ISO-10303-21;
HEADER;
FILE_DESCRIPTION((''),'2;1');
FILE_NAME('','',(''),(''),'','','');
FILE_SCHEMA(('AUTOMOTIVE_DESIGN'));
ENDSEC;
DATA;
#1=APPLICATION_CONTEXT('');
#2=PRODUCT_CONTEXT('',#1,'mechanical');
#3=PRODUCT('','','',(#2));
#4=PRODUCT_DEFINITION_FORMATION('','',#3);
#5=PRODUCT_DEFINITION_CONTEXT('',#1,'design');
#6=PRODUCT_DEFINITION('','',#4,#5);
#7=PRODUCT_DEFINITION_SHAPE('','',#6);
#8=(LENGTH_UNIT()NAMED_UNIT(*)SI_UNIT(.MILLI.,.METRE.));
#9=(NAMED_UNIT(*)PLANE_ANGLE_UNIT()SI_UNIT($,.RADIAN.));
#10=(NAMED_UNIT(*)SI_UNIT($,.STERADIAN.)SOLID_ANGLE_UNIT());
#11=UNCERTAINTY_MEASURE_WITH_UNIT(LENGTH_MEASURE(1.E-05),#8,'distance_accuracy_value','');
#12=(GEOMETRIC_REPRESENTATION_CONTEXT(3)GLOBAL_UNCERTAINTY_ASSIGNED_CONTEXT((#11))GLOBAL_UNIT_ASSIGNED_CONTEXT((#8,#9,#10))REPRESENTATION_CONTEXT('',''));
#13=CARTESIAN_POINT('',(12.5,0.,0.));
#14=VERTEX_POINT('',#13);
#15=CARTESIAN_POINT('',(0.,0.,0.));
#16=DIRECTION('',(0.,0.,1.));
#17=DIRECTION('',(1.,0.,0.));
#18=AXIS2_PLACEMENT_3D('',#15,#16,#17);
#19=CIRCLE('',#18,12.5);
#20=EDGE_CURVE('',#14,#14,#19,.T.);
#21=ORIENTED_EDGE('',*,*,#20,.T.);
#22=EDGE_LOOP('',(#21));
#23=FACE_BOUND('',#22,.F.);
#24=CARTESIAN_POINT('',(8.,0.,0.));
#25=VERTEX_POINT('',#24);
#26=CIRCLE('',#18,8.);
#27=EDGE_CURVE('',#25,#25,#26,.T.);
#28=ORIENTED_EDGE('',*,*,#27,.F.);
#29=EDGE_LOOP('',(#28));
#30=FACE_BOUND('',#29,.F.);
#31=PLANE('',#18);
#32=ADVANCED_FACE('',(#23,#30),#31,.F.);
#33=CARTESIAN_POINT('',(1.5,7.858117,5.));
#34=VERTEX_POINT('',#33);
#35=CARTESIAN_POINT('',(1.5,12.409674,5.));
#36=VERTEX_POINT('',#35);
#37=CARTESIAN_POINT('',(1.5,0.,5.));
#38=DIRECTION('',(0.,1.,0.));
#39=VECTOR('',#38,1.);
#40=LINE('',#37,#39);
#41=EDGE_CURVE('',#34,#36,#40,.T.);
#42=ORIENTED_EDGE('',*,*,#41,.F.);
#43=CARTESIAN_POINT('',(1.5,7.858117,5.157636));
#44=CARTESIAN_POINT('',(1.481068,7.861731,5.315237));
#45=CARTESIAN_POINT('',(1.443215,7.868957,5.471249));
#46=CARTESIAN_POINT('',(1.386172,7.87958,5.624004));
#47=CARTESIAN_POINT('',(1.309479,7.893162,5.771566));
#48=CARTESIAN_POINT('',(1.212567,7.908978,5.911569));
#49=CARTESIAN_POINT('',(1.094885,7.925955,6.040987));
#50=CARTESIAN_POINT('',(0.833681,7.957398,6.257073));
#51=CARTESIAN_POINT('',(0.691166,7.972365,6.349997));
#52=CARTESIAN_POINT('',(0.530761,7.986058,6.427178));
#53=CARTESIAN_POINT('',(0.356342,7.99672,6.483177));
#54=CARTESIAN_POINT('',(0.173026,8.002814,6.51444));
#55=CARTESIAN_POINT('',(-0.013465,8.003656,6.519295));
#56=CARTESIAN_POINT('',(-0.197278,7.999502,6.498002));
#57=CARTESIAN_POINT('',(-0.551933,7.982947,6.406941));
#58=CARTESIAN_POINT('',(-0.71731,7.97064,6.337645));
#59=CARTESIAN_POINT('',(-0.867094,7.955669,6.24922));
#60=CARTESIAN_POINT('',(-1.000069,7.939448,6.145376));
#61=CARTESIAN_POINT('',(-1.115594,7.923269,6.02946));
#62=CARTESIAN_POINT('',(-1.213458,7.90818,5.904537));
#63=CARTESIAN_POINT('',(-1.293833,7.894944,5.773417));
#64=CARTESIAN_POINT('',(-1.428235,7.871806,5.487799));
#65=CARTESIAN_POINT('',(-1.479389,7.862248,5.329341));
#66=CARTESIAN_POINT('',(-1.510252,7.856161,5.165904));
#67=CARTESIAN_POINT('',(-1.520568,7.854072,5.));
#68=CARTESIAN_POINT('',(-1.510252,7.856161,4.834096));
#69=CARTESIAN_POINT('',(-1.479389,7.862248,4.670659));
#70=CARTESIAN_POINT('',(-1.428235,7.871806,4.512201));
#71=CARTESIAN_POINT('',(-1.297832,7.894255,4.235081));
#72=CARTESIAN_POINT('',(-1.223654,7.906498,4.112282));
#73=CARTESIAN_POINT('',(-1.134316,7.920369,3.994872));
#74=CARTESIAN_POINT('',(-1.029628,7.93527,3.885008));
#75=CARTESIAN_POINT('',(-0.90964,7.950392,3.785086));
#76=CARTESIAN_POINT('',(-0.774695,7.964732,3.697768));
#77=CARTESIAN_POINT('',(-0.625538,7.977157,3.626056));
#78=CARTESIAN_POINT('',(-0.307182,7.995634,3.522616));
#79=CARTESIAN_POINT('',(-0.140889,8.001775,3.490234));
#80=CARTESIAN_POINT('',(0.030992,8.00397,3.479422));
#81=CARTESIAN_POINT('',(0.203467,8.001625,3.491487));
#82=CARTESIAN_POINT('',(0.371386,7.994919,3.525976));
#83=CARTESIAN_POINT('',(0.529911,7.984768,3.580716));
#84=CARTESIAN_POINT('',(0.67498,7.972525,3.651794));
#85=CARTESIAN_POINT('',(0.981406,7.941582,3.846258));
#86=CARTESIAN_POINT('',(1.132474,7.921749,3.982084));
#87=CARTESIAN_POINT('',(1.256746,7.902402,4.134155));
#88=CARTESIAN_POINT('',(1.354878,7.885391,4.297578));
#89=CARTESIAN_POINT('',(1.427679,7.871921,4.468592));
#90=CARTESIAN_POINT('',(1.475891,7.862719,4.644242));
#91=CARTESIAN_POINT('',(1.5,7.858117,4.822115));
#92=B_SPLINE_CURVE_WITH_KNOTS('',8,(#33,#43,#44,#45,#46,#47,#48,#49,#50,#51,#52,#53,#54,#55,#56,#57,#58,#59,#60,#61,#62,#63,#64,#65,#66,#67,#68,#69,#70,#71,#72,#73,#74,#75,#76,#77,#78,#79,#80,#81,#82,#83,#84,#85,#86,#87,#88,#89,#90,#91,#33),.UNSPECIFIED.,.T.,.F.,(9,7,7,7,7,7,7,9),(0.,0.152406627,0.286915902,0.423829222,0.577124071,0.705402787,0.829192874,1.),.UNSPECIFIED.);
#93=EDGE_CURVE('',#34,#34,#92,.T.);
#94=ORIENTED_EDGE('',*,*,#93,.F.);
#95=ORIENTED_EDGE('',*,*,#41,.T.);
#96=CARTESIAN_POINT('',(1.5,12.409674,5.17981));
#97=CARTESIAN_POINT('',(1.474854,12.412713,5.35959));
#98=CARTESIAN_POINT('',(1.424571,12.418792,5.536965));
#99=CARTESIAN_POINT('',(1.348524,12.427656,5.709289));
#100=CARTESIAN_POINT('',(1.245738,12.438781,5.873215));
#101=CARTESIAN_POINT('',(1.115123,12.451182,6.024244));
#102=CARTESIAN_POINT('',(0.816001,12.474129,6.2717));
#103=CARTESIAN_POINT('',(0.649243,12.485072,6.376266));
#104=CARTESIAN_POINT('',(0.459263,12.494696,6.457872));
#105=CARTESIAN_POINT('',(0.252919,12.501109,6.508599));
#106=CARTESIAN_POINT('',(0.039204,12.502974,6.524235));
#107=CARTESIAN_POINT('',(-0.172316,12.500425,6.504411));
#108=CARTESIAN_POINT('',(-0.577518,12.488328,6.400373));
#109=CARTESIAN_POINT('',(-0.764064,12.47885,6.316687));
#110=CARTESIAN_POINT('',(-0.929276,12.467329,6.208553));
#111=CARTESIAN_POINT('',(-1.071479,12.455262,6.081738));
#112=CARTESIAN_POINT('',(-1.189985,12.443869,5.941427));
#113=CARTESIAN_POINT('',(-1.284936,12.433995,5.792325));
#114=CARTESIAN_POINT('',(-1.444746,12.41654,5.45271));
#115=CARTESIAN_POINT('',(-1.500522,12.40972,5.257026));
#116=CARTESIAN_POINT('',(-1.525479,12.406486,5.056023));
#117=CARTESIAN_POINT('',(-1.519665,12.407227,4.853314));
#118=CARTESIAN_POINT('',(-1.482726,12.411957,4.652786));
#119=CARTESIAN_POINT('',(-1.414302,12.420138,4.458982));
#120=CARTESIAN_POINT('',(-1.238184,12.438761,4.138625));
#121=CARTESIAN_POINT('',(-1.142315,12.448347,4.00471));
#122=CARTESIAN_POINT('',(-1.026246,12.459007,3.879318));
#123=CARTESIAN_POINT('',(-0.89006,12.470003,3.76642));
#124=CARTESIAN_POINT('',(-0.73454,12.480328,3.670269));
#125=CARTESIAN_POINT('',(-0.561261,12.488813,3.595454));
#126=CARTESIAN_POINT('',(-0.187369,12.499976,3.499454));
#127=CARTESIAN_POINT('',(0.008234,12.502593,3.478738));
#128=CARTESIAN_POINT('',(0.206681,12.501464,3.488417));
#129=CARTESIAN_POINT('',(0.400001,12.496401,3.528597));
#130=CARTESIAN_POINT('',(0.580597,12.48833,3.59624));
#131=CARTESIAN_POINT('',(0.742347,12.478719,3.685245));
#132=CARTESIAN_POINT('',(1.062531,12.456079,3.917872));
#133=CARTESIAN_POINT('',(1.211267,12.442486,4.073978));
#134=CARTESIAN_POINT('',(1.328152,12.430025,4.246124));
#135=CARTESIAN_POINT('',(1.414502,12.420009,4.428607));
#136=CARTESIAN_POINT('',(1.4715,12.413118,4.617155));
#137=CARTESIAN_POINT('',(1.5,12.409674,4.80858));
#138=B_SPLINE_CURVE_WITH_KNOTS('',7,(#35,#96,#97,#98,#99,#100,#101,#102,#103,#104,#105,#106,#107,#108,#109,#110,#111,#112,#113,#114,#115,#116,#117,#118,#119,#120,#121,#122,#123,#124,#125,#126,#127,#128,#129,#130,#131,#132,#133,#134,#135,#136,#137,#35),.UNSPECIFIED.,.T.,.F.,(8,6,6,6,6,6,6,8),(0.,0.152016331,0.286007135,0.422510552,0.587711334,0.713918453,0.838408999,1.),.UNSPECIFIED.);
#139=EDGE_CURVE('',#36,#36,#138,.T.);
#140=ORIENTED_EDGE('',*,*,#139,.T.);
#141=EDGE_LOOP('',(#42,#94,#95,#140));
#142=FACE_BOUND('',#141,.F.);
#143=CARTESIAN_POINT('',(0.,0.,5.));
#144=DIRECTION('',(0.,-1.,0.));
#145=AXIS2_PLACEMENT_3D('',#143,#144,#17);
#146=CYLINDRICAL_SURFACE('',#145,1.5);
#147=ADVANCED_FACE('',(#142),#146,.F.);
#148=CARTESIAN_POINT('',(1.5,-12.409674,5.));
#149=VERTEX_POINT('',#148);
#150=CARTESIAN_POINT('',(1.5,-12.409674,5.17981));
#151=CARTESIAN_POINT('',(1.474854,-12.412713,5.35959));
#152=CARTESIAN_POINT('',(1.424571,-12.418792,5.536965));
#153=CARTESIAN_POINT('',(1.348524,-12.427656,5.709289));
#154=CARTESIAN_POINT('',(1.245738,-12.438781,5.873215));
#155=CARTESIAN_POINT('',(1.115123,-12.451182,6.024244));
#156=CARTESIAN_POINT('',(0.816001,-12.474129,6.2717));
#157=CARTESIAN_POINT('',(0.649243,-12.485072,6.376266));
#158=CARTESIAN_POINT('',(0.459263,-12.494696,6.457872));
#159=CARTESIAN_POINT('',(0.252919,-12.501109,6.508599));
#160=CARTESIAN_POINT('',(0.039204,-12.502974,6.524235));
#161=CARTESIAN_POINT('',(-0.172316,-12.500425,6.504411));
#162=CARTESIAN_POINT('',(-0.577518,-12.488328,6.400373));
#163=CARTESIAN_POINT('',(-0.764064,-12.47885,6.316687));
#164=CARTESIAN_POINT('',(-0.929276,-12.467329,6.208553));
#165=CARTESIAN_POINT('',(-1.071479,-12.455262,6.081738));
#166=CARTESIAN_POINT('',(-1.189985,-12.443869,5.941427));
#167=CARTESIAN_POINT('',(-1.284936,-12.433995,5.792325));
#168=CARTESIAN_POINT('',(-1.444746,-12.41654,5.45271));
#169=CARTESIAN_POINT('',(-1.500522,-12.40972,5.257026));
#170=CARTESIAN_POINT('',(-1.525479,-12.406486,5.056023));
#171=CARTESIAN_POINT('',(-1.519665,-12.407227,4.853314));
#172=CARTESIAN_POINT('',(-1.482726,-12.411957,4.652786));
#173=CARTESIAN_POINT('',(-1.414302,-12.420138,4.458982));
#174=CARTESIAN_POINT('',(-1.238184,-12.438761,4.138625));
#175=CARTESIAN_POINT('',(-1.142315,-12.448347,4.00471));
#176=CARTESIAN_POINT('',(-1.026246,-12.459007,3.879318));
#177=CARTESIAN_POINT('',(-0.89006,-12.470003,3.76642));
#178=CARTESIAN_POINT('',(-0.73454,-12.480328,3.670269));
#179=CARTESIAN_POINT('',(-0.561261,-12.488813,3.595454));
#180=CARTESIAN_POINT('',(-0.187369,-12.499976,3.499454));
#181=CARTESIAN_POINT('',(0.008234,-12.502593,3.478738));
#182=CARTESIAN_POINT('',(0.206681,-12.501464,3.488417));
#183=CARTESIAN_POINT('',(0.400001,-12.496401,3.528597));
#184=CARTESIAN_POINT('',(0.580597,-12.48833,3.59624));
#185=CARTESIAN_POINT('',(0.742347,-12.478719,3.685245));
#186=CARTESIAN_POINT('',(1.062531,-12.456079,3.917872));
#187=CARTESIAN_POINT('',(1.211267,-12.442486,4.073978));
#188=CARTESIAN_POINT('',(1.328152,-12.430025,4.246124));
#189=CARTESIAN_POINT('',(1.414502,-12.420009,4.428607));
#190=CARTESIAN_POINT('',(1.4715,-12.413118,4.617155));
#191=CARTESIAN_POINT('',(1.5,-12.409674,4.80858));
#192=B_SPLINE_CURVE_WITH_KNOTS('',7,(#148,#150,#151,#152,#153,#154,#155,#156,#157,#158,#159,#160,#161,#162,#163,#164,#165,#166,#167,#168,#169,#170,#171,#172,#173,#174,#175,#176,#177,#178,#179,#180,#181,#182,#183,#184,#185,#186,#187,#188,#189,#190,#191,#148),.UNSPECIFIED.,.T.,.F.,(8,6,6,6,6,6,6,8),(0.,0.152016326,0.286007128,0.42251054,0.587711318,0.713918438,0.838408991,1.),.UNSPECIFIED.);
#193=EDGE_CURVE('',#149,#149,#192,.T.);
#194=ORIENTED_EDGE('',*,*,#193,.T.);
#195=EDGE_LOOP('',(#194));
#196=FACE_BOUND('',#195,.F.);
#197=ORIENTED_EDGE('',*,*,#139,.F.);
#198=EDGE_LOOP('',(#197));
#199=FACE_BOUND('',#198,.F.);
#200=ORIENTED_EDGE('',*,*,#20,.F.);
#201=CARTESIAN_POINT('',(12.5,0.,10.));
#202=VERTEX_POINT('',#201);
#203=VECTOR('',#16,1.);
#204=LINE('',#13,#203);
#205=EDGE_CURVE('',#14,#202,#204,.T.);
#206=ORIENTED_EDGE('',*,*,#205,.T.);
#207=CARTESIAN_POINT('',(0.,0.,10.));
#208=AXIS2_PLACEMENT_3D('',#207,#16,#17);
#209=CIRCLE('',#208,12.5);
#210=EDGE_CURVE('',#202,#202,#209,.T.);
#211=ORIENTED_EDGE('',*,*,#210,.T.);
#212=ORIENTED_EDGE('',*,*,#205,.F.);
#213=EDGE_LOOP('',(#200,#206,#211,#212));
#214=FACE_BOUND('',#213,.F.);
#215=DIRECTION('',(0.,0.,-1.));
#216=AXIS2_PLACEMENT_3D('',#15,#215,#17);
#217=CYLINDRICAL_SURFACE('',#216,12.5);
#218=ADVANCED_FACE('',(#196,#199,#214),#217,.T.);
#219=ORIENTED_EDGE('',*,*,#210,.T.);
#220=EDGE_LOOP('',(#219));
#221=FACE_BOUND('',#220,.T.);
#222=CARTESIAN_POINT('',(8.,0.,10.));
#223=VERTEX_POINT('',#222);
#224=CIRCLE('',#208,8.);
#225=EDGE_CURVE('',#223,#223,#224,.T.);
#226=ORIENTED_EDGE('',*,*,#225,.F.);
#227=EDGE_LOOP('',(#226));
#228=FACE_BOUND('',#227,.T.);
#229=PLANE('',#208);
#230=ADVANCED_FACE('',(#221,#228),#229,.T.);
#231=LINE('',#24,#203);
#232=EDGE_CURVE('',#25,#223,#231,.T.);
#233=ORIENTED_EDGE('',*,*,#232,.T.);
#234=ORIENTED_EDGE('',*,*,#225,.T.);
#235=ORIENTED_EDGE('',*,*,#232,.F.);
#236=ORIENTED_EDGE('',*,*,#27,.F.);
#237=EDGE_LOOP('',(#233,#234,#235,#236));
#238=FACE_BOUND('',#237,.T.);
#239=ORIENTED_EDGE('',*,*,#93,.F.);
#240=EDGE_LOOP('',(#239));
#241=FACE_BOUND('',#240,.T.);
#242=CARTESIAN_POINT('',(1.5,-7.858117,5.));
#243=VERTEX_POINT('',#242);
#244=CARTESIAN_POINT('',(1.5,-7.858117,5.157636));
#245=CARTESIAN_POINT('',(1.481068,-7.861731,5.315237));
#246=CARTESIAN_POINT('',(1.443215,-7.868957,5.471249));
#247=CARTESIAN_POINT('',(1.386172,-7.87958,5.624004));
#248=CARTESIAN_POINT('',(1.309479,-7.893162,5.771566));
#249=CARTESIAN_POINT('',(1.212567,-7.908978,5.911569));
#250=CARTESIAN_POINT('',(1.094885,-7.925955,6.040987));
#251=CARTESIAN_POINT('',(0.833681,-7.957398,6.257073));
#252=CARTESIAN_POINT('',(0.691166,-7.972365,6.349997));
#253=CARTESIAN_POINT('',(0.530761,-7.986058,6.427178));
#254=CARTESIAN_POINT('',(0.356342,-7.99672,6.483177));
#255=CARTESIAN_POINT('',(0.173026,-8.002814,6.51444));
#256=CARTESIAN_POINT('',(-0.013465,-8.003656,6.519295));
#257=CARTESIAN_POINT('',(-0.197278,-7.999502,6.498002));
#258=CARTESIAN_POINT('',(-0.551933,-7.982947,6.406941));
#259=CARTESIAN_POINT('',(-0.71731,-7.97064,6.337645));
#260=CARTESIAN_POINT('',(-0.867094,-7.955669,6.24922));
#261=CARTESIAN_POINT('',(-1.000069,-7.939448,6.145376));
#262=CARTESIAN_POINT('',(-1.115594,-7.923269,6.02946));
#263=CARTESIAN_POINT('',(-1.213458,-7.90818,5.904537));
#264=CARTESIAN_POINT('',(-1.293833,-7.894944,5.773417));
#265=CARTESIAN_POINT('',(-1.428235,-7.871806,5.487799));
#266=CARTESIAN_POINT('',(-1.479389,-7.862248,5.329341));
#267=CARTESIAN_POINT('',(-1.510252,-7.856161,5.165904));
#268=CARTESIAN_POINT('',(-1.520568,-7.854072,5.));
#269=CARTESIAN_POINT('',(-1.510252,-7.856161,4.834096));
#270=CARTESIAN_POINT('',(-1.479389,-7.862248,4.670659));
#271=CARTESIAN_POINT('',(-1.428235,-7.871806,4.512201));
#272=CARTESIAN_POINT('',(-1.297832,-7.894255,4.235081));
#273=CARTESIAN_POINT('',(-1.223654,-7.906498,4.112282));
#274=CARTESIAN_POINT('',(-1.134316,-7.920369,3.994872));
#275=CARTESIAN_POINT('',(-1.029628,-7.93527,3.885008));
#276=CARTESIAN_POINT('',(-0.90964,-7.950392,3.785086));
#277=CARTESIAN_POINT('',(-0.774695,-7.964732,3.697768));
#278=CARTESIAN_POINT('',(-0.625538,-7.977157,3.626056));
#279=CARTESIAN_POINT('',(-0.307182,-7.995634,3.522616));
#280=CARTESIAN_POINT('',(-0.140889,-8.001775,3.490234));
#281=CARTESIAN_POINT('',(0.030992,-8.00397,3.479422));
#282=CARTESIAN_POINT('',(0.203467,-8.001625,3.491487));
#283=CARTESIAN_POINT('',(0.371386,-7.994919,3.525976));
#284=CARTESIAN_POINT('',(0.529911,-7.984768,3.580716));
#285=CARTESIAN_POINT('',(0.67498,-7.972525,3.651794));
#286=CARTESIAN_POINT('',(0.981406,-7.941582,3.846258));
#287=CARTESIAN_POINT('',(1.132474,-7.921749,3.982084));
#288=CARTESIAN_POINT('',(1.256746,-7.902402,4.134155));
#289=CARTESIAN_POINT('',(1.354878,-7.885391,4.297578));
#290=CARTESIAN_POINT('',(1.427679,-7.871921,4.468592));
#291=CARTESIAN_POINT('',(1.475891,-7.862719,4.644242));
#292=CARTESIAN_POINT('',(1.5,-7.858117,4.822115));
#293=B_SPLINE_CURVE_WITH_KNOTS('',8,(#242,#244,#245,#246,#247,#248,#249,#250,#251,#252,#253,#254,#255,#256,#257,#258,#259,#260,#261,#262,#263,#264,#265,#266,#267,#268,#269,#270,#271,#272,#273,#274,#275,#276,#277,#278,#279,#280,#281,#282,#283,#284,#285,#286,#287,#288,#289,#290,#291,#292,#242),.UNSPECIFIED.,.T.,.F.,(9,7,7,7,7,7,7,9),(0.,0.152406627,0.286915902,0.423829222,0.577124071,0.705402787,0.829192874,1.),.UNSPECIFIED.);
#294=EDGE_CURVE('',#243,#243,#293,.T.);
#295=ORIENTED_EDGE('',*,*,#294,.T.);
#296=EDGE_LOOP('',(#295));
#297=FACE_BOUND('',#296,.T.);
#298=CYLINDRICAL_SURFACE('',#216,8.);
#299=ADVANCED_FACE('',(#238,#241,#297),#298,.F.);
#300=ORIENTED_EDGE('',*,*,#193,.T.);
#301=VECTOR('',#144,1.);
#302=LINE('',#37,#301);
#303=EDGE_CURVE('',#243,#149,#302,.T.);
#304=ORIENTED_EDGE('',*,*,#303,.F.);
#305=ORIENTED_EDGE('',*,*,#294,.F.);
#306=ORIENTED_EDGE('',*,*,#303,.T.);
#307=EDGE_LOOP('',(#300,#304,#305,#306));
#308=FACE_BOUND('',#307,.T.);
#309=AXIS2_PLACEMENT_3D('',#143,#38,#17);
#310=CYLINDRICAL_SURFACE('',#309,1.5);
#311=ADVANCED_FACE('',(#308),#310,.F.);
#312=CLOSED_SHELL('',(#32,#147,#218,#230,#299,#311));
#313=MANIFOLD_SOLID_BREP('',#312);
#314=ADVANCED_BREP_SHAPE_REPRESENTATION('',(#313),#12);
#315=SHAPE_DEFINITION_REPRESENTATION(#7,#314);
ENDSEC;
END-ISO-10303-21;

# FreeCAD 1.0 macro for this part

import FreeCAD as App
import Part
import Sketcher

doc = App.newDocument("Part")
params = doc.addObject("Spreadsheet::Sheet", "Params")
for row, (alias, value) in enumerate([
    ("sketch1_diameter", "25 mm"),
    ("sketch1_diameter2", "16 mm"),
    ("pad1_length", "10 mm"),
    ("sketch2_diameter", "3 mm"),
    ("pocket1_length", "253.6881 mm"),
], start=1):
    params.set(f"A{row}", alias)
    params.set(f"B{row}", "=" + value)
    params.setAlias(f"B{row}", alias)

body = doc.addObject("PartDesign::Body", "Body")

# Sketch on XY plane
sketch1 = doc.addObject("Sketcher::SketchObject", "Sketch")
body.addObject(sketch1)
sketch1.AttachmentSupport = (doc.XY_Plane, [""])
sketch1.MapMode = "FlatFace"
sketch1.addGeometry([
    Part.Circle(App.Vector(0, 0, 0), App.Vector(0, 0, 1), 12.5),
    Part.Circle(App.Vector(0, 0, 0), App.Vector(0, 0, 1), 8),
], False)
sketch1.addConstraint([
    Sketcher.Constraint("Coincident", 0, 3, -1, 1),
    Sketcher.Constraint("Coincident", 1, 3, -1, 1),
    Sketcher.Constraint("Diameter", 0, 25.0),
    Sketcher.Constraint("Diameter", 1, 16.0),
])
sketch1.setExpression("Constraints[2]", "Params.sketch1_diameter")
sketch1.setExpression("Constraints[3]", "Params.sketch1_diameter2")
pad1 = doc.addObject("PartDesign::Pad", "Pad")
body.addObject(pad1)
pad1.Profile = sketch1
pad1.setExpression("Length", "Params.pad1_length")

# Sketch on XZ plane
sketch2 = doc.addObject("Sketcher::SketchObject", "Sketch001")
body.addObject(sketch2)
sketch2.AttachmentSupport = (doc.XZ_Plane, [""])
sketch2.MapMode = "FlatFace"
sketch2.addGeometry(Part.Circle(App.Vector(0, 5, 0), App.Vector(0, 0, 1), 1.5), False)
sketch2.addConstraint([
    Sketcher.Constraint("PointOnObject", 0, 3, -2),
    Sketcher.Constraint("Diameter", 0, 3.0),
    Sketcher.Constraint("DistanceY", -1, 1, 0, 3, 5.0),
])
sketch2.setExpression("Constraints[1]", "Params.sketch2_diameter")
pocket1 = doc.addObject("PartDesign::Pocket", "Pocket")
body.addObject(pocket1)
pocket1.Profile = sketch2
pocket1.setExpression("Length", "Params.pocket1_length")
pocket1.Midplane = True

doc.recompute()
